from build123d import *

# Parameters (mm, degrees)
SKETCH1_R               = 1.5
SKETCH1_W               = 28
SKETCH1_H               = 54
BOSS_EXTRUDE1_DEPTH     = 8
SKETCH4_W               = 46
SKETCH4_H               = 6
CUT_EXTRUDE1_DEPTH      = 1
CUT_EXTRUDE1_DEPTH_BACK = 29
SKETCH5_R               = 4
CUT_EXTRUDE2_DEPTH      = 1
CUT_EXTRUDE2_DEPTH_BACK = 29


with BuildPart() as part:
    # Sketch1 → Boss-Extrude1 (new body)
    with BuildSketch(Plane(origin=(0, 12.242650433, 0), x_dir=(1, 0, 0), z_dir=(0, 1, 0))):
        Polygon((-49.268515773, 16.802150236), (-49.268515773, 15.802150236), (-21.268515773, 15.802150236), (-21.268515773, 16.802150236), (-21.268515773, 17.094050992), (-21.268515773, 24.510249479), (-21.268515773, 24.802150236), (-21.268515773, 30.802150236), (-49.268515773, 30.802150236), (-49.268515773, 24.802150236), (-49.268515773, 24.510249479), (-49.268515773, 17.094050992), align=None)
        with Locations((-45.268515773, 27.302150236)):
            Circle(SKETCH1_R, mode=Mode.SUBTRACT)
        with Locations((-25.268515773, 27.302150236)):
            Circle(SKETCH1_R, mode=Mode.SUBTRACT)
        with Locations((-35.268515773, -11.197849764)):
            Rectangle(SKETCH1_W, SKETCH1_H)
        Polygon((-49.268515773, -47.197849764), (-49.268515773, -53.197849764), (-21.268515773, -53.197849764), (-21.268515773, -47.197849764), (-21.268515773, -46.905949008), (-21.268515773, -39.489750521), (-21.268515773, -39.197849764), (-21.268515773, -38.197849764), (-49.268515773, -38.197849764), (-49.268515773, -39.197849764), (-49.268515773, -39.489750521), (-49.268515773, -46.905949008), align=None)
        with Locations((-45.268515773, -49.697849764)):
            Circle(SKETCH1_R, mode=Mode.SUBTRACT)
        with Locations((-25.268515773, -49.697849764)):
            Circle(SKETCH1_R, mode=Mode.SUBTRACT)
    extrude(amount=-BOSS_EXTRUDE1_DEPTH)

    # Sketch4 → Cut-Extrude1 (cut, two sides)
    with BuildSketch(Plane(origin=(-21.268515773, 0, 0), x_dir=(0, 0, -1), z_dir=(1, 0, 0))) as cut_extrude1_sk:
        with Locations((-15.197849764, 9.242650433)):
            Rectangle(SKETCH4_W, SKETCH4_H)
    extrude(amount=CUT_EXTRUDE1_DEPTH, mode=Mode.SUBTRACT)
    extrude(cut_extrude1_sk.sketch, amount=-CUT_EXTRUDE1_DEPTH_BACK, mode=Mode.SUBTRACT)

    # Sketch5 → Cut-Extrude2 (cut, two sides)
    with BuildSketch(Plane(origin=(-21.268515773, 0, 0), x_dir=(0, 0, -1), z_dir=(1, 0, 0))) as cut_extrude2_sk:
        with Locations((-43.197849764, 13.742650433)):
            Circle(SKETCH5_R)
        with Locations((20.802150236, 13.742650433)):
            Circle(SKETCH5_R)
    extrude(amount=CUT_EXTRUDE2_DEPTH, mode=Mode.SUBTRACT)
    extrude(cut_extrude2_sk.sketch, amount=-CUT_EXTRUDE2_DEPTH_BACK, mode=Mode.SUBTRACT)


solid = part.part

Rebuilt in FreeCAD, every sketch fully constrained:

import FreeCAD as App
import Part
import Sketcher


def add_polygon(sketch, points):
    """Adds a closed chain of lines whose ends are joined by coincident constraints."""
    first, n = sketch.GeometryCount, len(points)
    for a, b in zip(points, points[1:] + points[:1]):
        sketch.addGeometry(Part.LineSegment(App.Vector(*a, 0), App.Vector(*b, 0)), False)
    for i in range(n):
        sketch.addConstraint(Sketcher.Constraint("Coincident", first + i, 2, first + (i + 1) % n, 1))

doc = App.newDocument("Part")
body = doc.addObject("PartDesign::Body", "Body")

# Sketch on XZ plane
sketch1 = body.newObject("Sketcher::SketchObject", "Sketch")
sketch1.AttachmentSupport = (doc.getObject("XZ_Plane"), [""])
sketch1.MapMode = "FlatFace"
sketch1.AttachmentOffset = App.Placement(App.Vector(0, 0, -12.24265), App.Rotation())
add_polygon(sketch1, [(-49.3, -30.8), (-49.3, 53.2), (-21.3, 53.2), (-21.3, -30.8)])  # lines 0-3
sketch1.addGeometry(Part.Circle(App.Vector(-45.3, 49.7, 0), App.Vector(0, 0, 1), 1.5), False)  # 4
sketch1.addGeometry(Part.Circle(App.Vector(-25.3, 49.7, 0), App.Vector(0, 0, 1), 1.5), False)  # 5
sketch1.addGeometry(Part.Circle(App.Vector(-45.3, -27.3, 0), App.Vector(0, 0, 1), 1.5), False)  # 6
sketch1.addGeometry(Part.Circle(App.Vector(-25.3, -27.3, 0), App.Vector(0, 0, 1), 1.5), False)  # 7
sketch1.addConstraint([
    Sketcher.Constraint("Vertical", 0),
    Sketcher.Constraint("Horizontal", 1),
    Sketcher.Constraint("Vertical", 2),
    Sketcher.Constraint("Horizontal", 3),
    Sketcher.Constraint("Equal", 4, 5),
    Sketcher.Constraint("Equal", 5, 6),
    Sketcher.Constraint("Equal", 6, 7),
    Sketcher.Constraint("Horizontal", 4, 3, 5, 3),
    Sketcher.Constraint("Horizontal", 6, 3, 7, 3),
    Sketcher.Constraint("Vertical", 4, 3, 6, 3),
    Sketcher.Constraint("Vertical", 5, 3, 7, 3),
    Sketcher.Constraint("Diameter", 4, 3.0),
    Sketcher.Constraint("DistanceX", 1, 1, 1, 2, 28.0),
    Sketcher.Constraint("DistanceY", 0, 1, 0, 2, 84.0),
    Sketcher.Constraint("DistanceX", 4, 3, 5, 3, 20.0),
    Sketcher.Constraint("DistanceY", 6, 3, 4, 3, 77.0),
    Sketcher.Constraint("DistanceX", 0, 2, 4, 3, 4.0),
    Sketcher.Constraint("DistanceY", 4, 3, 0, 2, 3.5),
    Sketcher.Constraint("DistanceY", -1, 1, 4, 3, 49.69785),
    Sketcher.Constraint("DistanceX", 4, 3, -1, 1, 45.268516),
])
pad1 = body.newObject("PartDesign::Pad", "Pad")
pad1.Profile = sketch1
pad1.Length = 8

# Sketch on YZ plane
sketch2 = body.newObject("Sketcher::SketchObject", "Sketch001")
sketch2.AttachmentSupport = (doc.getObject("YZ_Plane"), [""])
sketch2.MapMode = "FlatFace"
sketch2.AttachmentOffset = App.Placement(App.Vector(0, 0, -21.268516), App.Rotation())
add_polygon(sketch2, [(12, 38), (6, 38), (6, -8), (12, -8)])  # lines 0-3
sketch2.addConstraint([
    Sketcher.Constraint("Horizontal", 0),
    Sketcher.Constraint("Vertical", 1),
    Sketcher.Constraint("Horizontal", 2),
    Sketcher.Constraint("Vertical", 3),
    Sketcher.Constraint("DistanceX", 0, 2, 0, 1, 6.0),
    Sketcher.Constraint("DistanceY", 1, 2, 1, 1, 46.0),
    Sketcher.Constraint("DistanceX", -1, 1, 0, 2, 6.24265),
    Sketcher.Constraint("DistanceY", -1, 1, 0, 2, 38.19785),
])
pocket1 = body.newObject("PartDesign::Pocket", "Pocket")
pocket1.Profile = sketch2
pocket1.Type = "ThroughAll"
pocket1.Midplane = True

# Sketch on YZ plane
sketch3 = body.newObject("Sketcher::SketchObject", "Sketch002")
sketch3.AttachmentSupport = (doc.getObject("YZ_Plane"), [""])
sketch3.MapMode = "FlatFace"
sketch3.AttachmentOffset = App.Placement(App.Vector(0, 0, -21.268516), App.Rotation())
sketch3.addGeometry([
    Part.Circle(App.Vector(13.7, 43.2, 0), App.Vector(0, 0, 1), 4),
    Part.Circle(App.Vector(13.7, -20.8, 0), App.Vector(0, 0, 1), 4),
], False)
sketch3.addConstraint([
    Sketcher.Constraint("Equal", 0, 1),
    Sketcher.Constraint("Vertical", 0, 3, 1, 3),
    Sketcher.Constraint("Diameter", 0, 8.0),
    Sketcher.Constraint("DistanceY", 1, 3, 0, 3, 64.0),
    Sketcher.Constraint("DistanceX", -1, 1, 0, 3, 13.74265),
    Sketcher.Constraint("DistanceY", -1, 1, 0, 3, 43.19785),
])
pocket2 = body.newObject("PartDesign::Pocket", "Pocket001")
pocket2.Profile = sketch3
pocket2.Type = "ThroughAll"
pocket2.Midplane = True

doc.recompute()
